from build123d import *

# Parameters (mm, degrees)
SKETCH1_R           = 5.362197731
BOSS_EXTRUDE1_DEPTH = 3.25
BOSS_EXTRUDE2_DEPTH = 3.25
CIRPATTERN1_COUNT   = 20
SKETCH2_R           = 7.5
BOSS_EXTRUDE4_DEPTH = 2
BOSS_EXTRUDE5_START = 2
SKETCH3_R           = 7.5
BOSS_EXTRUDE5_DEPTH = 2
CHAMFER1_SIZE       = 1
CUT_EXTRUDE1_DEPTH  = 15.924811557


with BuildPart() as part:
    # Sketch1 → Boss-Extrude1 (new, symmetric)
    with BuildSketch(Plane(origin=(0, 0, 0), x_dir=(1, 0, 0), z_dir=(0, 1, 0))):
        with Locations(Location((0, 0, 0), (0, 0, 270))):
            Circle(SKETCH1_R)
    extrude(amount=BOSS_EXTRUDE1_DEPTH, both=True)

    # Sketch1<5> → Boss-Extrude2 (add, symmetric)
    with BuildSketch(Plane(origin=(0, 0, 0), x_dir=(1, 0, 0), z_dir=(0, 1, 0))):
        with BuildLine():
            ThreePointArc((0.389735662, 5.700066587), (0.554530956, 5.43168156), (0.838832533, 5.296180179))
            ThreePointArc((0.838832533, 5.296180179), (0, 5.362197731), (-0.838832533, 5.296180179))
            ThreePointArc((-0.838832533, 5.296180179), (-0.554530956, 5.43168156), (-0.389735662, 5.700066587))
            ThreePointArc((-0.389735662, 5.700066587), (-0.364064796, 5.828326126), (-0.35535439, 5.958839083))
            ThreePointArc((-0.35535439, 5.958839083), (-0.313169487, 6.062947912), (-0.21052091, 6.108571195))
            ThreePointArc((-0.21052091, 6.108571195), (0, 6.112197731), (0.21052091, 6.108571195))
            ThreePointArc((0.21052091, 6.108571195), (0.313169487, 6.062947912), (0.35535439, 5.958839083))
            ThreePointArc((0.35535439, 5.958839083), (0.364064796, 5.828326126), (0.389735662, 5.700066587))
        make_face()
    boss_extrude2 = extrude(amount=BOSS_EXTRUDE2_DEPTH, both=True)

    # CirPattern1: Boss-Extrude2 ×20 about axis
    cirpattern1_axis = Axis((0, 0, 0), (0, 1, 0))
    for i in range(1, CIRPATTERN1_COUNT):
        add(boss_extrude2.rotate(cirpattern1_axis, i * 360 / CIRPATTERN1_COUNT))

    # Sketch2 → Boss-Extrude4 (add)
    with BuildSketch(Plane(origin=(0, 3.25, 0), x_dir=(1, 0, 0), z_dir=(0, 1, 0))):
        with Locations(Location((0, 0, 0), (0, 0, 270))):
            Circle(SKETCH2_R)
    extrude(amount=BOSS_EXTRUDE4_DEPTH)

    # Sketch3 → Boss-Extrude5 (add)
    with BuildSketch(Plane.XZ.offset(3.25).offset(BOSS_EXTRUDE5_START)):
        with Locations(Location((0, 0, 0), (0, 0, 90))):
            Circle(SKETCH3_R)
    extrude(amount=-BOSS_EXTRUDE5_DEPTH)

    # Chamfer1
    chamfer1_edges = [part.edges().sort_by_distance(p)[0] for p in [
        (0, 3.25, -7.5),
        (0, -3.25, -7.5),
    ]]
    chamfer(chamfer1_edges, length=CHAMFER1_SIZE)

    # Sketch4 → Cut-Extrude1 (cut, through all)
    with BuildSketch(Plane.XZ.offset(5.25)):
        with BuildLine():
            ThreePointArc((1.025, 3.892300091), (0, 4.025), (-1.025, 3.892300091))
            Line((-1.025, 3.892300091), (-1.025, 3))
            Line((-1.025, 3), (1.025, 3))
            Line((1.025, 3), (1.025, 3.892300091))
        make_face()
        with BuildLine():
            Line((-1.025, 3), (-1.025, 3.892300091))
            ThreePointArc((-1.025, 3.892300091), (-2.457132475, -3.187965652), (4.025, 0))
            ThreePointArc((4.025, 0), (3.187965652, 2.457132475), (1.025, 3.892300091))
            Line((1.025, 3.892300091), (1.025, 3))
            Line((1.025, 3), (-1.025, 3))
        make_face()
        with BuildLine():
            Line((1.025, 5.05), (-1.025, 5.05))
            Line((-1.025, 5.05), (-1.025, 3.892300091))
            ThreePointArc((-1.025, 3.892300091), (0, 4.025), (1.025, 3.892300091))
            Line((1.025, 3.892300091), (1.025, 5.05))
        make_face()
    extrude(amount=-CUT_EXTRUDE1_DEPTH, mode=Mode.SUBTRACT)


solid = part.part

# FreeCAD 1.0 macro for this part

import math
import FreeCAD as App
import Part
import Sketcher
from FreeCAD import Vector


def edges_at(feature, points):
    """Names of the edges that pass closest to the given points."""
    edges = feature.Shape.Edges
    near = lambda p: min(range(len(edges)), key=lambda i: edges[i].distToShape(Part.Vertex(*p))[0])
    return sorted({f"Edge{near(p) + 1}" for p in points})

doc = App.newDocument("Part")
body = doc.addObject("PartDesign::Body", "Body")

# Sketch on XZ plane
sketch1 = body.newObject("Sketcher::SketchObject", "Sketch")
sketch1.AttachmentSupport = (doc.getObject("XZ_Plane"), [""])
sketch1.MapMode = "FlatFace"
sketch1.addGeometry(Part.Circle(Vector(0, 0, 0), Vector(0, 0, 1), 5.362198), False)
sketch1.addConstraint([
    Sketcher.Constraint("Coincident", 0, 3, -1, 1),
    Sketcher.Constraint("Diameter", 0, 10.724395),
])
pad1 = body.newObject("PartDesign::Pad", "Pad")
pad1.Profile = sketch1
pad1.Length = 6.5
pad1.Midplane = True

# Sketch on XZ plane
sketch2 = body.newObject("Sketcher::SketchObject", "Sketch001")
sketch2.AttachmentSupport = (doc.getObject("XZ_Plane"), [""])
sketch2.MapMode = "FlatFace"
sketch2.addGeometry([
    Part.ArcOfCircle(Part.Circle(Vector(0.925654, -5.844347, 0), Vector(0, 0, 1), 0.555), math.radians(99), math.radians(164.93201)),  # 0
    Part.ArcOfCircle(Part.Circle(Vector(1.355354, -5.960032, 0), Vector(0, 0, 1), 1), math.radians(164.932009), math.radians(179.93167)),  # 1
    Part.ArcOfCircle(Part.Circle(Vector(0.205354, -5.95866, 0), Vector(0, 0, 1), 0.15), math.radians(-88.026186), math.radians(-0.06833)),  # 2
    Part.ArcOfCircle(Part.Circle(Vector(0, -0.000001, 0), Vector(0, 0, 1), 6.112197), math.radians(-91.973815), math.radians(-88.026185)),  # 3
    Part.ArcOfCircle(Part.Circle(Vector(-0.205354, -5.95866, 0), Vector(0, 0, 1), 0.15), math.radians(-179.93167), math.radians(-91.973814)),  # 4
    Part.ArcOfCircle(Part.Circle(Vector(-1.355354, -5.960032, 0), Vector(0, 0, 1), 1), math.radians(0.06833), math.radians(15.067991)),  # 5
    Part.ArcOfCircle(Part.Circle(Vector(-0.925654, -5.844347, 0), Vector(0, 0, 1), 0.555), math.radians(15.06799), math.radians(81)),  # 6
    Part.ArcOfCircle(Part.Circle(Vector(0, 0, 0), Vector(0, 0, 1), 5.362198), math.radians(-99), math.radians(-81)),  # 7
], False)
sketch2.addConstraint([
    Sketcher.Constraint("Tangent", 0, 2, 1, 1),
    Sketcher.Constraint("Tangent", 1, 2, 2, 2),
    Sketcher.Constraint("Tangent", 2, 1, 3, 2),
    Sketcher.Constraint("Tangent", 3, 1, 4, 2),
    Sketcher.Constraint("Tangent", 4, 1, 5, 1),
    Sketcher.Constraint("Tangent", 5, 2, 6, 1),
    Sketcher.Constraint("Tangent", 6, 2, 7, 1),
    Sketcher.Constraint("Tangent", 7, 2, 0, 1),
    Sketcher.Constraint("Coincident", 3, 3, -1, 1),
    Sketcher.Constraint("Coincident", 7, 3, -1, 1),
    Sketcher.Constraint("Equal", 2, 4),
    Sketcher.Constraint("Equal", 1, 5),
    Sketcher.Constraint("Equal", 0, 6),
    Sketcher.Constraint("Symmetric", 1, 3, 5, 3, -2),
    Sketcher.Constraint("Radius", 1, 1.0),
    Sketcher.Constraint("Radius", 2, 0.15),
    Sketcher.Constraint("Radius", 0, 0.555),
    Sketcher.Constraint("Radius", 3, 6.112197),
    Sketcher.Constraint("Radius", 7, 5.362198),
    Sketcher.Constraint("DistanceX", 0, 3, 1, 3, 0.4297),
    Sketcher.Constraint("DistanceY", 1, 3, -1, 1, 5.960032),
])
pad2 = body.newObject("PartDesign::Pad", "Pad001")
pad2.Profile = sketch2
pad2.Length = 6.5
pad2.Midplane = True
doc.recompute()

polarpattern = body.newObject("PartDesign::PolarPattern", "PolarPattern")
polarpattern.Originals = [pad2]
polarpattern.Axis = (doc.getObject("Y_Axis"), [""])
polarpattern.Angle = 360
polarpattern.Occurrences = 20
body.Tip = polarpattern

# Sketch on XZ plane
sketch3 = body.newObject("Sketcher::SketchObject", "Sketch002")
sketch3.AttachmentSupport = (doc.getObject("XZ_Plane"), [""])
sketch3.MapMode = "FlatFace"
sketch3.AttachmentOffset = App.Placement(Vector(0, 0, -3.25), App.Rotation())
sketch3.addGeometry(Part.Circle(Vector(0, 0, 0), Vector(0, 0, 1), 7.5), False)
sketch3.addConstraint([
    Sketcher.Constraint("Coincident", 0, 3, -1, 1),
    Sketcher.Constraint("Diameter", 0, 15.0),
])
pad3 = body.newObject("PartDesign::Pad", "Pad002")
pad3.Profile = sketch3
pad3.Length = 2
pad3.Reversed = True

# Sketch on XZ plane
sketch4 = body.newObject("Sketcher::SketchObject", "Sketch003")
sketch4.AttachmentSupport = (doc.getObject("XZ_Plane"), [""])
sketch4.MapMode = "FlatFace"
sketch4.AttachmentOffset = App.Placement(Vector(0, 0, 5.25), App.Rotation())
sketch4.addGeometry(Part.Circle(Vector(0, 0, 0), Vector(0, 0, 1), 7.5), False)
sketch4.addConstraint([
    Sketcher.Constraint("Coincident", 0, 3, -1, 1),
    Sketcher.Constraint("Diameter", 0, 15.0),
])
pad4 = body.newObject("PartDesign::Pad", "Pad003")
pad4.Profile = sketch4
pad4.Length = 2
pad4.Reversed = True
doc.recompute()

chamfer = body.newObject("PartDesign::Chamfer", "Chamfer")
chamfer.Base = (pad4, edges_at(pad4, [(0, 3.25, -7.5), (0, -3.25, -7.5)]))
chamfer.Size = 1

# Sketch on XZ plane
sketch5 = body.newObject("Sketcher::SketchObject", "Sketch004")
sketch5.AttachmentSupport = (doc.getObject("XZ_Plane"), [""])
sketch5.MapMode = "FlatFace"
sketch5.AttachmentOffset = App.Placement(Vector(0, 0, 5.25), App.Rotation())
sketch5.addGeometry([
    Part.ArcOfCircle(Part.Circle(Vector(0, 0, 0), Vector(0, 0, 1), 4.025), math.radians(104.753344), math.radians(360)),  # 0
    Part.ArcOfCircle(Part.Circle(Vector(0, 0, 0), Vector(0, 0, 1), 4.025), math.radians(0), math.radians(75.246656)),  # 1
    Part.LineSegment(Vector(1.025, 3.8923, 0), Vector(1.025, 5.05, 0)),  # 2
    Part.LineSegment(Vector(1.025, 5.05, 0), Vector(-1.025, 5.05, 0)),  # 3
    Part.LineSegment(Vector(-1.025, 5.05, 0), Vector(-1.025, 3.8923, 0)),  # 4
], False)
sketch5.addConstraint([
    Sketcher.Constraint("Tangent", 0, 2, 1, 1),
    Sketcher.Constraint("Coincident", 1, 2, 2, 1),
    Sketcher.Constraint("Coincident", 2, 2, 3, 1),
    Sketcher.Constraint("Coincident", 3, 2, 4, 1),
    Sketcher.Constraint("Coincident", 4, 2, 0, 1),
    Sketcher.Constraint("Vertical", 2),
    Sketcher.Constraint("Horizontal", 3),
    Sketcher.Constraint("Vertical", 4),
    Sketcher.Constraint("Coincident", 0, 3, -1, 1),
    Sketcher.Constraint("Equal", 0, 1),
    Sketcher.Constraint("PointOnObject", 0, 2, -1),
    Sketcher.Constraint("Horizontal", 1, 2, 4, 2),
    Sketcher.Constraint("Radius", 0, 4.025),
    Sketcher.Constraint("DistanceX", 1, 2, 0, 2, 3.0),
    Sketcher.Constraint("DistanceY", -1, 1, 2, 2, 5.05),
])
pocket1 = body.newObject("PartDesign::Pocket", "Pocket")
pocket1.Profile = sketch5
pocket1.Type = "ThroughAll"

doc.recompute()
